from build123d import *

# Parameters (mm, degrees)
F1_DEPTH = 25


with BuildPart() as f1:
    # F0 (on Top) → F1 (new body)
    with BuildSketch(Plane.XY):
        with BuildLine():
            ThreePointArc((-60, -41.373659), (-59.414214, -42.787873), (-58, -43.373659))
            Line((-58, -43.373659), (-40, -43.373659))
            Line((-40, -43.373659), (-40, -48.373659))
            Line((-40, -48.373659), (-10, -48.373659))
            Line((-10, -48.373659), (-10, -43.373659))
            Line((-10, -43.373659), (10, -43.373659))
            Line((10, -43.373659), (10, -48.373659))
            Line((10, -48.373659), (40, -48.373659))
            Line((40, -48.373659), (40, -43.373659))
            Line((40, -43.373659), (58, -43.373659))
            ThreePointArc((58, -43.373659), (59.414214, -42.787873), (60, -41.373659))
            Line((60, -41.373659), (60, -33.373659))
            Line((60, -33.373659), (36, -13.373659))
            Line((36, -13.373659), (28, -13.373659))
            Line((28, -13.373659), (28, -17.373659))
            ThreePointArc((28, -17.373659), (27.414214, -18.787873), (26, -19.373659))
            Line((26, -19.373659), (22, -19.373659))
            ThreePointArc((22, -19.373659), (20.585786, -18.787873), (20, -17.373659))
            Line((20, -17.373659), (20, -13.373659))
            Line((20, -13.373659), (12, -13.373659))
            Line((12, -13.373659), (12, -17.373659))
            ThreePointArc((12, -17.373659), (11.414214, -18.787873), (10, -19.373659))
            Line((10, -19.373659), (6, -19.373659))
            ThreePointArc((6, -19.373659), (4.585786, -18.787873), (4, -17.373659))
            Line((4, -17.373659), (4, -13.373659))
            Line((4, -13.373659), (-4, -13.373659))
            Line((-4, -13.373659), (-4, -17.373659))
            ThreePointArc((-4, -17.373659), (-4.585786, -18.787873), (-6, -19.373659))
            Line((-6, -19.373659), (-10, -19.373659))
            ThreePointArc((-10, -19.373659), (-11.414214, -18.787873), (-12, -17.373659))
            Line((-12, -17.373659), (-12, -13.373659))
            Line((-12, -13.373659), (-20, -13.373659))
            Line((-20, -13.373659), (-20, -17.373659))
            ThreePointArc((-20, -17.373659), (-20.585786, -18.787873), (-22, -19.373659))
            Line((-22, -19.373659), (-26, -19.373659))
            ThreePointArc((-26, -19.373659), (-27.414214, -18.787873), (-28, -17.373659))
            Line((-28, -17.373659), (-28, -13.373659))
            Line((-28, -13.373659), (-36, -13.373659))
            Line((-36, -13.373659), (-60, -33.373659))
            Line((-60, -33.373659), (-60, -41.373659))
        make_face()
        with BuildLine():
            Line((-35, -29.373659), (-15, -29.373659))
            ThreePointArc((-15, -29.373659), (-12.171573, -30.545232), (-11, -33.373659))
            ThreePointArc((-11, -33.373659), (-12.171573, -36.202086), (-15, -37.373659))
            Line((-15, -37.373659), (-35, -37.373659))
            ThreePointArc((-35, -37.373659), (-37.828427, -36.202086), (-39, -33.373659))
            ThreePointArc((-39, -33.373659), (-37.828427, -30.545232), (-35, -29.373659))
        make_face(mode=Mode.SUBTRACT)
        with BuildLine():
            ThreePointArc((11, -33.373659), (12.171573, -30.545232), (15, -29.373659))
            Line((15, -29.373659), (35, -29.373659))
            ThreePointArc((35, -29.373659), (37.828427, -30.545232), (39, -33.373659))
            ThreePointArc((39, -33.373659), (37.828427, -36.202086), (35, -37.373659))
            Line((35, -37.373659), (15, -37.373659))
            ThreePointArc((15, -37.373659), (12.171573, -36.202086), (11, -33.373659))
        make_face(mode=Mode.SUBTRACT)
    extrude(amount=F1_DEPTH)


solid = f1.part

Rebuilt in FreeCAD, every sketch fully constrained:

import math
import FreeCAD as App
import Part
import Sketcher

doc = App.newDocument("Part")
body = doc.addObject("PartDesign::Body", "Body")

sketch1 = body.newObject("Sketcher::SketchObject", "Sketch")
sketch1.AttachmentSupport = (doc.getObject("XY_Plane"), [""])
sketch1.MapMode = "FlatFace"
sketch1.addGeometry([
    Part.ArcOfCircle(Part.Circle(App.Vector(-58, -41.4, 0), App.Vector(0, 0, 1), 2), math.radians(180), math.radians(270)),
    Part.LineSegment(App.Vector(-58, -43.4, 0), App.Vector(-40, -43.4, 0)),
    Part.LineSegment(App.Vector(-40, -43.4, 0), App.Vector(-40, -48.4, 0)),
    Part.LineSegment(App.Vector(-40, -48.4, 0), App.Vector(-10, -48.4, 0)),
    Part.LineSegment(App.Vector(-10, -48.4, 0), App.Vector(-10, -43.4, 0)),
    Part.LineSegment(App.Vector(-10, -43.4, 0), App.Vector(10, -43.4, 0)),
    Part.LineSegment(App.Vector(10, -43.4, 0), App.Vector(10, -48.4, 0)),
    Part.LineSegment(App.Vector(10, -48.4, 0), App.Vector(40, -48.4, 0)),
    Part.LineSegment(App.Vector(40, -48.4, 0), App.Vector(40, -43.4, 0)),
    Part.LineSegment(App.Vector(40, -43.4, 0), App.Vector(58, -43.4, 0)),
    Part.ArcOfCircle(Part.Circle(App.Vector(58, -41.4, 0), App.Vector(0, 0, 1), 2), math.radians(-90), math.radians(0)),
    Part.LineSegment(App.Vector(60, -41.4, 0), App.Vector(60, -33.4, 0)),
    Part.LineSegment(App.Vector(60, -33.4, 0), App.Vector(36, -13.4, 0)),
    Part.LineSegment(App.Vector(36, -13.4, 0), App.Vector(28, -13.4, 0)),
    Part.LineSegment(App.Vector(28, -13.4, 0), App.Vector(28, -17.4, 0)),
    Part.ArcOfCircle(Part.Circle(App.Vector(26, -17.4, 0), App.Vector(0, 0, 1), 2), math.radians(-90), math.radians(0)),
    Part.LineSegment(App.Vector(26, -19.4, 0), App.Vector(22, -19.4, 0)),
    Part.ArcOfCircle(Part.Circle(App.Vector(22, -17.4, 0), App.Vector(0, 0, 1), 2), math.radians(180), math.radians(270)),
    Part.LineSegment(App.Vector(20, -17.4, 0), App.Vector(20, -13.4, 0)),
    Part.LineSegment(App.Vector(20, -13.4, 0), App.Vector(12, -13.4, 0)),
    Part.LineSegment(App.Vector(12, -13.4, 0), App.Vector(12, -17.4, 0)),
    Part.ArcOfCircle(Part.Circle(App.Vector(10, -17.4, 0), App.Vector(0, 0, 1), 2), math.radians(-90), math.radians(0)),
    Part.LineSegment(App.Vector(10, -19.4, 0), App.Vector(6, -19.4, 0)),
    Part.ArcOfCircle(Part.Circle(App.Vector(6, -17.4, 0), App.Vector(0, 0, 1), 2), math.radians(180), math.radians(270)),
    Part.LineSegment(App.Vector(4, -17.4, 0), App.Vector(4, -13.4, 0)),
    Part.LineSegment(App.Vector(4, -13.4, 0), App.Vector(-4, -13.4, 0)),
    Part.LineSegment(App.Vector(-4, -13.4, 0), App.Vector(-4, -17.4, 0)),
    Part.ArcOfCircle(Part.Circle(App.Vector(-6, -17.4, 0), App.Vector(0, 0, 1), 2), math.radians(-90), math.radians(0)),
    Part.LineSegment(App.Vector(-6, -19.4, 0), App.Vector(-10, -19.4, 0)),
    Part.ArcOfCircle(Part.Circle(App.Vector(-10, -17.4, 0), App.Vector(0, 0, 1), 2), math.radians(180), math.radians(270)),
    Part.LineSegment(App.Vector(-12, -17.4, 0), App.Vector(-12, -13.4, 0)),
    Part.LineSegment(App.Vector(-12, -13.4, 0), App.Vector(-20, -13.4, 0)),
    Part.LineSegment(App.Vector(-20, -13.4, 0), App.Vector(-20, -17.4, 0)),
    Part.ArcOfCircle(Part.Circle(App.Vector(-22, -17.4, 0), App.Vector(0, 0, 1), 2), math.radians(-90), math.radians(0)),
    Part.LineSegment(App.Vector(-22, -19.4, 0), App.Vector(-26, -19.4, 0)),
    Part.ArcOfCircle(Part.Circle(App.Vector(-26, -17.4, 0), App.Vector(0, 0, 1), 2), math.radians(180), math.radians(270)),
    Part.LineSegment(App.Vector(-28, -17.4, 0), App.Vector(-28, -13.4, 0)),
    Part.LineSegment(App.Vector(-28, -13.4, 0), App.Vector(-36, -13.4, 0)),
    Part.LineSegment(App.Vector(-36, -13.4, 0), App.Vector(-60, -33.4, 0)),
    Part.LineSegment(App.Vector(-60, -33.4, 0), App.Vector(-60, -41.4, 0)),
    Part.ArcOfCircle(Part.Circle(App.Vector(-35, -33.4, 0), App.Vector(0, 0, 1), 4), math.radians(90), math.radians(180)),
    Part.LineSegment(App.Vector(-35, -29.4, 0), App.Vector(-15, -29.4, 0)),
    Part.ArcOfCircle(Part.Circle(App.Vector(-15, -33.4, 0), App.Vector(0, 0, 1), 4), math.radians(0), math.radians(90)),
    Part.ArcOfCircle(Part.Circle(App.Vector(-15, -33.4, 0), App.Vector(0, 0, 1), 4), math.radians(-90), math.radians(0)),
    Part.LineSegment(App.Vector(-15, -37.4, 0), App.Vector(-35, -37.4, 0)),
    Part.ArcOfCircle(Part.Circle(App.Vector(-35, -33.4, 0), App.Vector(0, 0, 1), 4), math.radians(-180), math.radians(-90)),
    Part.ArcOfCircle(Part.Circle(App.Vector(15, -33.4, 0), App.Vector(0, 0, 1), 4), math.radians(-180), math.radians(-90)),
    Part.ArcOfCircle(Part.Circle(App.Vector(15, -33.4, 0), App.Vector(0, 0, 1), 4), math.radians(90), math.radians(180)),
    Part.LineSegment(App.Vector(15, -29.4, 0), App.Vector(35, -29.4, 0)),
    Part.ArcOfCircle(Part.Circle(App.Vector(35, -33.4, 0), App.Vector(0, 0, 1), 4), math.radians(0), math.radians(90)),
    Part.ArcOfCircle(Part.Circle(App.Vector(35, -33.4, 0), App.Vector(0, 0, 1), 4), math.radians(-90), math.radians(0)),
    Part.LineSegment(App.Vector(35, -37.4, 0), App.Vector(15, -37.4, 0)),
], False)
sketch1.addConstraint([
    Sketcher.Constraint("Tangent", 0, 2, 1, 1),
    Sketcher.Constraint("Coincident", 1, 2, 2, 1),
    Sketcher.Constraint("Coincident", 2, 2, 3, 1),
    Sketcher.Constraint("Coincident", 3, 2, 4, 1),
    Sketcher.Constraint("Coincident", 4, 2, 5, 1),
    Sketcher.Constraint("Coincident", 5, 2, 6, 1),
    Sketcher.Constraint("Coincident", 6, 2, 7, 1),
    Sketcher.Constraint("Coincident", 7, 2, 8, 1),
    Sketcher.Constraint("Coincident", 8, 2, 9, 1),
    Sketcher.Constraint("Tangent", 9, 2, 10, 1),
    Sketcher.Constraint("Tangent", 10, 2, 11, 1),
    Sketcher.Constraint("Coincident", 11, 2, 12, 1),
    Sketcher.Constraint("Coincident", 12, 2, 13, 1),
    Sketcher.Constraint("Coincident", 13, 2, 14, 1),
    Sketcher.Constraint("Tangent", 14, 2, 15, 2),
    Sketcher.Constraint("Tangent", 15, 1, 16, 1),
    Sketcher.Constraint("Tangent", 16, 2, 17, 2),
    Sketcher.Constraint("Tangent", 17, 1, 18, 1),
    Sketcher.Constraint("Coincident", 18, 2, 19, 1),
    Sketcher.Constraint("Coincident", 19, 2, 20, 1),
    Sketcher.Constraint("Tangent", 20, 2, 21, 2),
    Sketcher.Constraint("Tangent", 21, 1, 22, 1),
    Sketcher.Constraint("Tangent", 22, 2, 23, 2),
    Sketcher.Constraint("Tangent", 23, 1, 24, 1),
    Sketcher.Constraint("Coincident", 24, 2, 25, 1),
    Sketcher.Constraint("Coincident", 25, 2, 26, 1),
    Sketcher.Constraint("Tangent", 26, 2, 27, 2),
    Sketcher.Constraint("Tangent", 27, 1, 28, 1),
    Sketcher.Constraint("Tangent", 28, 2, 29, 2),
    Sketcher.Constraint("Tangent", 29, 1, 30, 1),
    Sketcher.Constraint("Coincident", 30, 2, 31, 1),
    Sketcher.Constraint("Coincident", 31, 2, 32, 1),
    Sketcher.Constraint("Tangent", 32, 2, 33, 2),
    Sketcher.Constraint("Tangent", 33, 1, 34, 1),
    Sketcher.Constraint("Tangent", 34, 2, 35, 2),
    Sketcher.Constraint("Tangent", 35, 1, 36, 1),
    Sketcher.Constraint("Coincident", 36, 2, 37, 1),
    Sketcher.Constraint("Coincident", 37, 2, 38, 1),
    Sketcher.Constraint("Coincident", 38, 2, 39, 1),
    Sketcher.Constraint("Tangent", 39, 2, 0, 1),
    Sketcher.Constraint("Tangent", 40, 1, 41, 1),
    Sketcher.Constraint("Tangent", 41, 2, 42, 2),
    Sketcher.Constraint("Tangent", 42, 1, 43, 2),
    Sketcher.Constraint("Tangent", 43, 1, 44, 1),
    Sketcher.Constraint("Tangent", 44, 2, 45, 2),
    Sketcher.Constraint("Tangent", 45, 1, 40, 2),
    Sketcher.Constraint("Tangent", 46, 1, 47, 2),
    Sketcher.Constraint("Tangent", 47, 1, 48, 1),
    Sketcher.Constraint("Tangent", 48, 2, 49, 2),
    Sketcher.Constraint("Tangent", 49, 1, 50, 2),
    Sketcher.Constraint("Tangent", 50, 1, 51, 1),
    Sketcher.Constraint("Tangent", 51, 2, 46, 2),
    Sketcher.Constraint("Horizontal", 1),
    Sketcher.Constraint("Vertical", 2),
    Sketcher.Constraint("Horizontal", 3),
    Sketcher.Constraint("Vertical", 4),
    Sketcher.Constraint("Horizontal", 5),
    Sketcher.Constraint("Vertical", 6),
    Sketcher.Constraint("Horizontal", 7),
    Sketcher.Constraint("Vertical", 8),
    Sketcher.Constraint("Horizontal", 9),
    Sketcher.Constraint("Vertical", 11),
    Sketcher.Constraint("Horizontal", 13),
    Sketcher.Constraint("Vertical", 14),
    Sketcher.Constraint("Horizontal", 16),
    Sketcher.Constraint("Vertical", 18),
    Sketcher.Constraint("Horizontal", 19),
    Sketcher.Constraint("Vertical", 20),
    Sketcher.Constraint("Horizontal", 22),
    Sketcher.Constraint("Vertical", 24),
    Sketcher.Constraint("Horizontal", 25),
    Sketcher.Constraint("Vertical", 26),
    Sketcher.Constraint("Horizontal", 28),
    Sketcher.Constraint("Vertical", 30),
    Sketcher.Constraint("Horizontal", 31),
    Sketcher.Constraint("Vertical", 32),
    Sketcher.Constraint("Horizontal", 34),
    Sketcher.Constraint("Vertical", 36),
    Sketcher.Constraint("Horizontal", 37),
    Sketcher.Constraint("Vertical", 39),
    Sketcher.Constraint("Horizontal", 41),
    Sketcher.Constraint("Horizontal", 44),
    Sketcher.Constraint("Horizontal", 48),
    Sketcher.Constraint("Horizontal", 51),
    Sketcher.Constraint("Equal", 0, 10),
    Sketcher.Constraint("Equal", 10, 15),
    Sketcher.Constraint("Equal", 15, 17),
    Sketcher.Constraint("Equal", 17, 21),
    Sketcher.Constraint("Equal", 21, 23),
    Sketcher.Constraint("Equal", 23, 27),
    Sketcher.Constraint("Equal", 27, 29),
    Sketcher.Constraint("Equal", 29, 33),
    Sketcher.Constraint("Equal", 33, 35),
    Sketcher.Constraint("Equal", 40, 42),
    Sketcher.Constraint("Equal", 42, 43),
    Sketcher.Constraint("Equal", 45, 46),
    Sketcher.Constraint("Equal", 46, 47),
    Sketcher.Constraint("Equal", 47, 49),
    Sketcher.Constraint("Symmetric", 0, 3, 10, 3, -2),
    Sketcher.Constraint("Symmetric", 23, 3, 27, 3, -2),
    Sketcher.Constraint("Symmetric", 17, 3, 33, 3, -2),
    Sketcher.Constraint("Symmetric", 42, 3, 46, 3, -2),
    Sketcher.Constraint("Symmetric", 3, 2, 6, 2, -2),
    Sketcher.Constraint("Symmetric", 19, 2, 30, 2, -2),
    Sketcher.Constraint("Symmetric", 13, 2, 36, 2, -2),
    Sketcher.Constraint("Symmetric", 45, 1, 49, 1, -2),
    Sketcher.Constraint("Horizontal", 17, 3, 21, 3),
    Sketcher.Constraint("Horizontal", 1, 2, 4, 2),
    Sketcher.Constraint("Horizontal", 50, 3, 11, 2),
    Sketcher.Constraint("Horizontal", 13, 2, 18, 2),
    Sketcher.Constraint("Horizontal", 19, 2, 24, 2),
    Sketcher.Constraint("Horizontal", 11, 2, 38, 2),
    Sketcher.Constraint("Horizontal", 38, 2, 42, 1),
    Sketcher.Constraint("Horizontal", 42, 1, 45, 1),
    Sketcher.Constraint("Horizontal", 45, 1, 46, 1),
    Sketcher.Constraint("Vertical", 29, 3, 3, 2),
    Sketcher.Constraint("Equal", 3, 7),
    Sketcher.Constraint("Equal", 13, 19),
    Sketcher.Constraint("Equal", 16, 22),
    Sketcher.Constraint("Equal", 19, 25),
    Sketcher.Constraint("Equal", 31, 37),
    Sketcher.Constraint("Equal", 5, 41),
    Sketcher.Constraint("Equal", 37, 11),
    Sketcher.Constraint("Equal", 34, 14),
    Sketcher.Constraint("Radius", 0, 1.999999),
    Sketcher.Constraint("Radius", 40, 4.0),
    Sketcher.Constraint("DistanceX", 1, 1, 1, 2, 18.0),
    Sketcher.Constraint("DistanceX", 3, 1, 3, 2, 30.0),
    Sketcher.Constraint("DistanceX", 5, 1, 5, 2, 20.0),
    Sketcher.Constraint("DistanceX", 13, 2, 13, 1, 8.0),
    Sketcher.Constraint("DistanceY", 2, 2, 2, 1, 5.0),
    Sketcher.Constraint("DistanceX", 40, 3, -1, 1, 35.0),
    Sketcher.Constraint("Distance", 12, 31.240999),
    Sketcher.Constraint("DistanceY", 0, 3, -1, 1, 41.37366),
])
pad1 = body.newObject("PartDesign::Pad", "Pad")
pad1.Profile = sketch1
pad1.Length = 25

doc.recompute()
